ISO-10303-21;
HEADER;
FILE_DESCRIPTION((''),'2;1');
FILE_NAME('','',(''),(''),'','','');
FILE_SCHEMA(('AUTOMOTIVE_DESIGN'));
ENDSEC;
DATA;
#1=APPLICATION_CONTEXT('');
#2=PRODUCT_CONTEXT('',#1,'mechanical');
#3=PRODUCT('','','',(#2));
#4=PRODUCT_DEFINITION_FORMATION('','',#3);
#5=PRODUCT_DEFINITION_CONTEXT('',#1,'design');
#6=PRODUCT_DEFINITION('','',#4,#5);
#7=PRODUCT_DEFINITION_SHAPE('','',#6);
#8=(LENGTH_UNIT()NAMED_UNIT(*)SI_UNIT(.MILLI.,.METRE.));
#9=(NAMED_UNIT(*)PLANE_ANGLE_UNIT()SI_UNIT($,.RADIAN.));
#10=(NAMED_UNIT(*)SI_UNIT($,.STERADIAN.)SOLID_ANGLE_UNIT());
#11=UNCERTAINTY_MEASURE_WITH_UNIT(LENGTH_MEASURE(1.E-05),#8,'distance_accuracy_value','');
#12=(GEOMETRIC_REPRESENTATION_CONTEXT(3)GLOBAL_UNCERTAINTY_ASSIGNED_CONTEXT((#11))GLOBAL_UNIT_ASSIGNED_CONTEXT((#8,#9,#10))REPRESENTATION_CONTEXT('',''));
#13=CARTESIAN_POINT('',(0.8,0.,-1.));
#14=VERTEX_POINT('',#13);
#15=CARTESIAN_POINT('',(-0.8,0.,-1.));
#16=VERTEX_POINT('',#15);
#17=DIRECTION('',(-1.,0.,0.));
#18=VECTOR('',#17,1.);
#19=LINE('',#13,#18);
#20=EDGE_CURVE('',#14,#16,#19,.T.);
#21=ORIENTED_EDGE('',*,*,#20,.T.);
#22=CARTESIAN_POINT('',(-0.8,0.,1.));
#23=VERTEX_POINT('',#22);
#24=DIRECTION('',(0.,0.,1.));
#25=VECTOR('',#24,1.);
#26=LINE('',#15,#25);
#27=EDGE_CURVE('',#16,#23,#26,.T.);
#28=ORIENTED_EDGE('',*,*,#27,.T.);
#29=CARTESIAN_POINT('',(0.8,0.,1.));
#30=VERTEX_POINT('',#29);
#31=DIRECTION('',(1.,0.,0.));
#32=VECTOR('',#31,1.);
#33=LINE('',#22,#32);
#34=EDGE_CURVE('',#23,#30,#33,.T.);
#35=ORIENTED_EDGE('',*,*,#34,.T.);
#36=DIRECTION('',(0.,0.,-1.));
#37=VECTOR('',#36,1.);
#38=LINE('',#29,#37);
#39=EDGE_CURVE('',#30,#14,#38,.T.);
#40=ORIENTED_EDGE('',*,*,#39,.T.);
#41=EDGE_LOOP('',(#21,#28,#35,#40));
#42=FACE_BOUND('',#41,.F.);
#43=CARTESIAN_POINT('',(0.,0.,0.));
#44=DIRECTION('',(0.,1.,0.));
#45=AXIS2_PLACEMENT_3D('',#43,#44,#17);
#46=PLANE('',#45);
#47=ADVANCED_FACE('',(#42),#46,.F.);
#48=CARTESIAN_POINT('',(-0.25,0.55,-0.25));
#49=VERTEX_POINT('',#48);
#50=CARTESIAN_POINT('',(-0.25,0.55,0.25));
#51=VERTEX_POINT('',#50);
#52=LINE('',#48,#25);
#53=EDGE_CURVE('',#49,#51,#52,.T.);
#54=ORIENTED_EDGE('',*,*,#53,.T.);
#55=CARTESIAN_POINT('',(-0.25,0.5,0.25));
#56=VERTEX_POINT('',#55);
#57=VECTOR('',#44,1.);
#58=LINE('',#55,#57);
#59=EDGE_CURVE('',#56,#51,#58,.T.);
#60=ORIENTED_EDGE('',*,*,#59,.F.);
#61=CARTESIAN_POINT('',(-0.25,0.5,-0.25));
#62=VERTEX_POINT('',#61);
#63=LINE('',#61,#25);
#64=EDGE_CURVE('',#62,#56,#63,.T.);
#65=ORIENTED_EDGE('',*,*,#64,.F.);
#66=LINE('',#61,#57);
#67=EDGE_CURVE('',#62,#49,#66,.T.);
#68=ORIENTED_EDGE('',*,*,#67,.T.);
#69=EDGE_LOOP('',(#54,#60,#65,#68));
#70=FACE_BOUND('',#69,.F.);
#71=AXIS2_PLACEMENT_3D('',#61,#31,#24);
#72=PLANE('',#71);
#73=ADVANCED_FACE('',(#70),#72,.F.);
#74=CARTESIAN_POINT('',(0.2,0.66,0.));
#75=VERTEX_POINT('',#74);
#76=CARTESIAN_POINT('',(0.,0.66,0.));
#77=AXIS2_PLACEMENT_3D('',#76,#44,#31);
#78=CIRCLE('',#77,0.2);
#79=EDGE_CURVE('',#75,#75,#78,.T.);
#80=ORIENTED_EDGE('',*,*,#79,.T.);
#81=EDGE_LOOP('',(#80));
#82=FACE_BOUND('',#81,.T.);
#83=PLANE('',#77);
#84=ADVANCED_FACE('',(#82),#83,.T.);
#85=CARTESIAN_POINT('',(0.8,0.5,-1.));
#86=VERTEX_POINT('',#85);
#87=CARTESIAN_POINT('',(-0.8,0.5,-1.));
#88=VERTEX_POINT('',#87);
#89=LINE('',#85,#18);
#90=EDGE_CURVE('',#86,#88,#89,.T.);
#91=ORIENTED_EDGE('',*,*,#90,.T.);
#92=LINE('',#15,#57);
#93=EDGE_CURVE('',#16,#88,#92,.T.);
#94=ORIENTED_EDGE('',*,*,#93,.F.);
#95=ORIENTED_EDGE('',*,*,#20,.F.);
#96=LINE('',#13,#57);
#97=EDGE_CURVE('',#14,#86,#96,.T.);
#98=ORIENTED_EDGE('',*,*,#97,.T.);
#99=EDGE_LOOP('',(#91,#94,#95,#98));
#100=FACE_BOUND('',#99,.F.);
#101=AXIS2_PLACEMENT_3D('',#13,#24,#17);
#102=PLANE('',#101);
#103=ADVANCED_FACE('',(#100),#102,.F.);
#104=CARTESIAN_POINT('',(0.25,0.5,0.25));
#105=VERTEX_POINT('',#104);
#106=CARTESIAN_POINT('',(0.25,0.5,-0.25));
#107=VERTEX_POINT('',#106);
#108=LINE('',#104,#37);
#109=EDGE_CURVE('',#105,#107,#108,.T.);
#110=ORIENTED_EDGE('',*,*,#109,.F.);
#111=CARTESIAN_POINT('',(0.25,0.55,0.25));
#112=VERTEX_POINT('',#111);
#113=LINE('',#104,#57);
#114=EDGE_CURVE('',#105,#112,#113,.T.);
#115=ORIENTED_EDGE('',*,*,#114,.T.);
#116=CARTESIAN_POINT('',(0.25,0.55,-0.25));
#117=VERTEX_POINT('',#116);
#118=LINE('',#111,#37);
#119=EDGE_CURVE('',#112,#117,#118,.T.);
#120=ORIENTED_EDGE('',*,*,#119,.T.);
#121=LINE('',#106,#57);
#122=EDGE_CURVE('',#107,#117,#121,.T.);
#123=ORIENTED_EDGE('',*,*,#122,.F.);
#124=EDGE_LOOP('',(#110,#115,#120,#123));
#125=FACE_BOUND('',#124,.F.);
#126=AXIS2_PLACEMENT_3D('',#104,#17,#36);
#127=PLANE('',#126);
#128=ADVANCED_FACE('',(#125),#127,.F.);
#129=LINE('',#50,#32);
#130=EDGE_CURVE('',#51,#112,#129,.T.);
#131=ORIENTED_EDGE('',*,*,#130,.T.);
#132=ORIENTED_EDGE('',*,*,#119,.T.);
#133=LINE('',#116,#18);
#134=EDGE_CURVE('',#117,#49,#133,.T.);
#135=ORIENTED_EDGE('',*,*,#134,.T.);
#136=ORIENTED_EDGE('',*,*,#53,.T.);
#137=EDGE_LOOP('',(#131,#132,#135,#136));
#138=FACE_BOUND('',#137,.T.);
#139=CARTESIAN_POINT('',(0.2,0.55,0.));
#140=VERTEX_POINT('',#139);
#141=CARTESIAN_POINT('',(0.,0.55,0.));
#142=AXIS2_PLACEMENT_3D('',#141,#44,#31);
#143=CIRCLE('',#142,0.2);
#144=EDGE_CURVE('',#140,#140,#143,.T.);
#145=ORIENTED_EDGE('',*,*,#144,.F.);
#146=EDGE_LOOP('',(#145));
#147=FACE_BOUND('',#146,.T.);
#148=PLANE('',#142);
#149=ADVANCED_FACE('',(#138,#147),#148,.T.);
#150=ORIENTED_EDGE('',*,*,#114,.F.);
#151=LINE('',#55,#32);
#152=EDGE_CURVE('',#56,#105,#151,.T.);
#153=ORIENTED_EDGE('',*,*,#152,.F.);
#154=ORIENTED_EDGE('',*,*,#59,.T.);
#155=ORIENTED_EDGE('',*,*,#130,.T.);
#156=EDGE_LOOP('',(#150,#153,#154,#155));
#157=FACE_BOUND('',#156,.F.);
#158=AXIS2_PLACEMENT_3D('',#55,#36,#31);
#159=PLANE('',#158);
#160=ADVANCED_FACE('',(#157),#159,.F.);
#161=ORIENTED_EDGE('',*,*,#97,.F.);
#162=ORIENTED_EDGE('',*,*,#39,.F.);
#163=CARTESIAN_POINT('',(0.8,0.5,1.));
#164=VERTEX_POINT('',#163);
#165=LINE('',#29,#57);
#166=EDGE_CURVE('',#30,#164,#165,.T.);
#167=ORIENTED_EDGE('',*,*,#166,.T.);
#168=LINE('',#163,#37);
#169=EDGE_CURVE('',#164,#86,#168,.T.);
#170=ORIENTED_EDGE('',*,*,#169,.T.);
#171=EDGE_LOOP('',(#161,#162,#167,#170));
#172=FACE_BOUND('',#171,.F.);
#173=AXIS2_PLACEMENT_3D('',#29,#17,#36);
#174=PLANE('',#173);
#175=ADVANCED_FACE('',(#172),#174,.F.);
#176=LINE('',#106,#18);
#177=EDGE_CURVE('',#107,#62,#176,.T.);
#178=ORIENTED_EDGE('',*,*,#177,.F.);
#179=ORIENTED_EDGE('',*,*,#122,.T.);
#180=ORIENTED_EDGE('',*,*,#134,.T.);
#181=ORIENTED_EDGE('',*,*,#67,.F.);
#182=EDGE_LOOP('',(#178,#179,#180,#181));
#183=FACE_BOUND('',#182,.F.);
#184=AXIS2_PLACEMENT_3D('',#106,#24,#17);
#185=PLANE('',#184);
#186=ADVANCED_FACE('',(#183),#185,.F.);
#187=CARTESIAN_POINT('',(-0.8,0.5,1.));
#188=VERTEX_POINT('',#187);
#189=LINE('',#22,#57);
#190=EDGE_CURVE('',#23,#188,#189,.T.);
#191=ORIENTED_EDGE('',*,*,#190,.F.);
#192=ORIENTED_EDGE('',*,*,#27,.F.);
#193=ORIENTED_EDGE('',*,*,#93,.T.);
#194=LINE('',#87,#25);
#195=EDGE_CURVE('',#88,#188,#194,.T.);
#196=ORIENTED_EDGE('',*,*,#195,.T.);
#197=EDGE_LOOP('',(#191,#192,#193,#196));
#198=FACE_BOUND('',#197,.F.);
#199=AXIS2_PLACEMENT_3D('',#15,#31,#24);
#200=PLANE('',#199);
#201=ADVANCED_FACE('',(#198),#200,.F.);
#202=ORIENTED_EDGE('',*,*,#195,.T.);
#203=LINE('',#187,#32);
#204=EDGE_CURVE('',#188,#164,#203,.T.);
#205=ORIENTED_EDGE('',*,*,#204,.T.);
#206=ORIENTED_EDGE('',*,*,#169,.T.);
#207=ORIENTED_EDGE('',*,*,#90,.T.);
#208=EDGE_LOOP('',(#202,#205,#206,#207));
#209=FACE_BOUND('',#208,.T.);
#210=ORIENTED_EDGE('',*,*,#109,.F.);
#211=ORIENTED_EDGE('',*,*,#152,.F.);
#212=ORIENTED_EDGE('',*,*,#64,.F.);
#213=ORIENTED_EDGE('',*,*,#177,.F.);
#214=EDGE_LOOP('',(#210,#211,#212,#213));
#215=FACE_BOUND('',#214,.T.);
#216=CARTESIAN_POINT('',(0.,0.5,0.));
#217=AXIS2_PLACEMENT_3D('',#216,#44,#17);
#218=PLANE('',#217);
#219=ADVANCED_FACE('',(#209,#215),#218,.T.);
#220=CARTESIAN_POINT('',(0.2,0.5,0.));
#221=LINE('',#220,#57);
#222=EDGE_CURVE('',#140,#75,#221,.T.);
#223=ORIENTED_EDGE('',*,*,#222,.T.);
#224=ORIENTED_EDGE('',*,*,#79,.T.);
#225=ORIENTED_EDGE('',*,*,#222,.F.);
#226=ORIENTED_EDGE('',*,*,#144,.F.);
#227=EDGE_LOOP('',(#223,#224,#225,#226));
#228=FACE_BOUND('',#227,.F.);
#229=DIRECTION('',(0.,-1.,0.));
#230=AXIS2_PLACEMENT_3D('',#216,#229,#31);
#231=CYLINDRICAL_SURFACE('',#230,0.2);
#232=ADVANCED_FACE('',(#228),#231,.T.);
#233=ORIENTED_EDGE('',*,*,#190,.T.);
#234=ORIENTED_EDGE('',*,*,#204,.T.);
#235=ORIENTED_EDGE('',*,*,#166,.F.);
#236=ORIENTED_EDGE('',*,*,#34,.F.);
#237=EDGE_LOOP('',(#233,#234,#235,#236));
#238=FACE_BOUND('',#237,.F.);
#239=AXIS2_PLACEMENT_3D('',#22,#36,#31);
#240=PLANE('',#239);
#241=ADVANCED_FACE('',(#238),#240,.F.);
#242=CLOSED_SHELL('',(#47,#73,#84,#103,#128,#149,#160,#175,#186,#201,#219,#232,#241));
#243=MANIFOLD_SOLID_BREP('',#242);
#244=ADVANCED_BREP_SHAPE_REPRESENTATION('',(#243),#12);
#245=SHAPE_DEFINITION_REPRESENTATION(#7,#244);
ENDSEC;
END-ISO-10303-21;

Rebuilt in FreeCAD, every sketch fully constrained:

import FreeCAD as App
import Part
import Sketcher
from FreeCAD import Vector


def add_polygon(sketch, points):
    """Adds a closed chain of lines whose ends are joined by coincident constraints."""
    first, n = sketch.GeometryCount, len(points)
    for a, b in zip(points, points[1:] + points[:1]):
        sketch.addGeometry(Part.LineSegment(App.Vector(*a, 0), App.Vector(*b, 0)), False)
    for i in range(n):
        sketch.addConstraint(Sketcher.Constraint("Coincident", first + i, 2, first + (i + 1) % n, 1))

doc = App.newDocument("Part")
body = doc.addObject("PartDesign::Body", "Body")

sketch1 = body.newObject("Sketcher::SketchObject", "Sketch")
sketch1.AttachmentSupport = (doc.getObject("XZ_Plane"), [""])
sketch1.MapMode = "FlatFace"
add_polygon(sketch1, [(-0.8, -1), (-0.8, 1), (0.8, 1), (0.8, -1)])
sketch1.addConstraint([
    Sketcher.Constraint("Vertical", 0),
    Sketcher.Constraint("Horizontal", 1),
    Sketcher.Constraint("Vertical", 2),
    Sketcher.Constraint("Horizontal", 3),
    Sketcher.Constraint("Symmetric", 0, 2, 2, 2, -1, 1),
    Sketcher.Constraint("DistanceY", 0, 1, 0, 2, 2.0),
    Sketcher.Constraint("DistanceX", 1, 1, 1, 2, 1.6),
])
pad1 = body.newObject("PartDesign::Pad", "Pad")
pad1.Profile = sketch1
pad1.Length = 0.5
pad1.Reversed = True

sketch2 = body.newObject("Sketcher::SketchObject", "Sketch001")
sketch2.AttachmentSupport = (doc.getObject("XZ_Plane"), [""])
sketch2.MapMode = "FlatFace"
sketch2.AttachmentOffset = App.Placement(Vector(0, 0, -0.5), App.Rotation())
add_polygon(sketch2, [(-0.25, -0.25), (-0.25, 0.25), (0.25, 0.25), (0.25, -0.25)])
sketch2.addGeometry(Part.Circle(Vector(0, 0, 0), Vector(0, 0, 1), 0.2), False)
sketch2.addConstraint([
    Sketcher.Constraint("Vertical", 0),
    Sketcher.Constraint("Horizontal", 1),
    Sketcher.Constraint("Vertical", 2),
    Sketcher.Constraint("Horizontal", 3),
    Sketcher.Constraint("Coincident", 4, 3, -1, 1),
    Sketcher.Constraint("Symmetric", 0, 2, 2, 2, -1, 1),
    Sketcher.Constraint("Equal", 3, 0),
    Sketcher.Constraint("Diameter", 4, 0.4),
    Sketcher.Constraint("DistanceX", 1, 1, 1, 2, 0.5),
])
pad2 = body.newObject("PartDesign::Pad", "Pad001")
pad2.Profile = sketch2
pad2.Length = 0.05
pad2.Reversed = True

sketch3 = body.newObject("Sketcher::SketchObject", "Sketch002")
sketch3.AttachmentSupport = (doc.getObject("XZ_Plane"), [""])
sketch3.MapMode = "FlatFace"
sketch3.AttachmentOffset = App.Placement(Vector(0, 0, -0.5), App.Rotation())
sketch3.addGeometry(Part.Circle(Vector(0, 0, 0), Vector(0, 0, 1), 0.2), False)
sketch3.addConstraint([
    Sketcher.Constraint("Coincident", 0, 3, -1, 1),
    Sketcher.Constraint("Diameter", 0, 0.4),
])
pad3 = body.newObject("PartDesign::Pad", "Pad002")
pad3.Profile = sketch3
pad3.Length = 0.16
pad3.Reversed = True

doc.recompute()
